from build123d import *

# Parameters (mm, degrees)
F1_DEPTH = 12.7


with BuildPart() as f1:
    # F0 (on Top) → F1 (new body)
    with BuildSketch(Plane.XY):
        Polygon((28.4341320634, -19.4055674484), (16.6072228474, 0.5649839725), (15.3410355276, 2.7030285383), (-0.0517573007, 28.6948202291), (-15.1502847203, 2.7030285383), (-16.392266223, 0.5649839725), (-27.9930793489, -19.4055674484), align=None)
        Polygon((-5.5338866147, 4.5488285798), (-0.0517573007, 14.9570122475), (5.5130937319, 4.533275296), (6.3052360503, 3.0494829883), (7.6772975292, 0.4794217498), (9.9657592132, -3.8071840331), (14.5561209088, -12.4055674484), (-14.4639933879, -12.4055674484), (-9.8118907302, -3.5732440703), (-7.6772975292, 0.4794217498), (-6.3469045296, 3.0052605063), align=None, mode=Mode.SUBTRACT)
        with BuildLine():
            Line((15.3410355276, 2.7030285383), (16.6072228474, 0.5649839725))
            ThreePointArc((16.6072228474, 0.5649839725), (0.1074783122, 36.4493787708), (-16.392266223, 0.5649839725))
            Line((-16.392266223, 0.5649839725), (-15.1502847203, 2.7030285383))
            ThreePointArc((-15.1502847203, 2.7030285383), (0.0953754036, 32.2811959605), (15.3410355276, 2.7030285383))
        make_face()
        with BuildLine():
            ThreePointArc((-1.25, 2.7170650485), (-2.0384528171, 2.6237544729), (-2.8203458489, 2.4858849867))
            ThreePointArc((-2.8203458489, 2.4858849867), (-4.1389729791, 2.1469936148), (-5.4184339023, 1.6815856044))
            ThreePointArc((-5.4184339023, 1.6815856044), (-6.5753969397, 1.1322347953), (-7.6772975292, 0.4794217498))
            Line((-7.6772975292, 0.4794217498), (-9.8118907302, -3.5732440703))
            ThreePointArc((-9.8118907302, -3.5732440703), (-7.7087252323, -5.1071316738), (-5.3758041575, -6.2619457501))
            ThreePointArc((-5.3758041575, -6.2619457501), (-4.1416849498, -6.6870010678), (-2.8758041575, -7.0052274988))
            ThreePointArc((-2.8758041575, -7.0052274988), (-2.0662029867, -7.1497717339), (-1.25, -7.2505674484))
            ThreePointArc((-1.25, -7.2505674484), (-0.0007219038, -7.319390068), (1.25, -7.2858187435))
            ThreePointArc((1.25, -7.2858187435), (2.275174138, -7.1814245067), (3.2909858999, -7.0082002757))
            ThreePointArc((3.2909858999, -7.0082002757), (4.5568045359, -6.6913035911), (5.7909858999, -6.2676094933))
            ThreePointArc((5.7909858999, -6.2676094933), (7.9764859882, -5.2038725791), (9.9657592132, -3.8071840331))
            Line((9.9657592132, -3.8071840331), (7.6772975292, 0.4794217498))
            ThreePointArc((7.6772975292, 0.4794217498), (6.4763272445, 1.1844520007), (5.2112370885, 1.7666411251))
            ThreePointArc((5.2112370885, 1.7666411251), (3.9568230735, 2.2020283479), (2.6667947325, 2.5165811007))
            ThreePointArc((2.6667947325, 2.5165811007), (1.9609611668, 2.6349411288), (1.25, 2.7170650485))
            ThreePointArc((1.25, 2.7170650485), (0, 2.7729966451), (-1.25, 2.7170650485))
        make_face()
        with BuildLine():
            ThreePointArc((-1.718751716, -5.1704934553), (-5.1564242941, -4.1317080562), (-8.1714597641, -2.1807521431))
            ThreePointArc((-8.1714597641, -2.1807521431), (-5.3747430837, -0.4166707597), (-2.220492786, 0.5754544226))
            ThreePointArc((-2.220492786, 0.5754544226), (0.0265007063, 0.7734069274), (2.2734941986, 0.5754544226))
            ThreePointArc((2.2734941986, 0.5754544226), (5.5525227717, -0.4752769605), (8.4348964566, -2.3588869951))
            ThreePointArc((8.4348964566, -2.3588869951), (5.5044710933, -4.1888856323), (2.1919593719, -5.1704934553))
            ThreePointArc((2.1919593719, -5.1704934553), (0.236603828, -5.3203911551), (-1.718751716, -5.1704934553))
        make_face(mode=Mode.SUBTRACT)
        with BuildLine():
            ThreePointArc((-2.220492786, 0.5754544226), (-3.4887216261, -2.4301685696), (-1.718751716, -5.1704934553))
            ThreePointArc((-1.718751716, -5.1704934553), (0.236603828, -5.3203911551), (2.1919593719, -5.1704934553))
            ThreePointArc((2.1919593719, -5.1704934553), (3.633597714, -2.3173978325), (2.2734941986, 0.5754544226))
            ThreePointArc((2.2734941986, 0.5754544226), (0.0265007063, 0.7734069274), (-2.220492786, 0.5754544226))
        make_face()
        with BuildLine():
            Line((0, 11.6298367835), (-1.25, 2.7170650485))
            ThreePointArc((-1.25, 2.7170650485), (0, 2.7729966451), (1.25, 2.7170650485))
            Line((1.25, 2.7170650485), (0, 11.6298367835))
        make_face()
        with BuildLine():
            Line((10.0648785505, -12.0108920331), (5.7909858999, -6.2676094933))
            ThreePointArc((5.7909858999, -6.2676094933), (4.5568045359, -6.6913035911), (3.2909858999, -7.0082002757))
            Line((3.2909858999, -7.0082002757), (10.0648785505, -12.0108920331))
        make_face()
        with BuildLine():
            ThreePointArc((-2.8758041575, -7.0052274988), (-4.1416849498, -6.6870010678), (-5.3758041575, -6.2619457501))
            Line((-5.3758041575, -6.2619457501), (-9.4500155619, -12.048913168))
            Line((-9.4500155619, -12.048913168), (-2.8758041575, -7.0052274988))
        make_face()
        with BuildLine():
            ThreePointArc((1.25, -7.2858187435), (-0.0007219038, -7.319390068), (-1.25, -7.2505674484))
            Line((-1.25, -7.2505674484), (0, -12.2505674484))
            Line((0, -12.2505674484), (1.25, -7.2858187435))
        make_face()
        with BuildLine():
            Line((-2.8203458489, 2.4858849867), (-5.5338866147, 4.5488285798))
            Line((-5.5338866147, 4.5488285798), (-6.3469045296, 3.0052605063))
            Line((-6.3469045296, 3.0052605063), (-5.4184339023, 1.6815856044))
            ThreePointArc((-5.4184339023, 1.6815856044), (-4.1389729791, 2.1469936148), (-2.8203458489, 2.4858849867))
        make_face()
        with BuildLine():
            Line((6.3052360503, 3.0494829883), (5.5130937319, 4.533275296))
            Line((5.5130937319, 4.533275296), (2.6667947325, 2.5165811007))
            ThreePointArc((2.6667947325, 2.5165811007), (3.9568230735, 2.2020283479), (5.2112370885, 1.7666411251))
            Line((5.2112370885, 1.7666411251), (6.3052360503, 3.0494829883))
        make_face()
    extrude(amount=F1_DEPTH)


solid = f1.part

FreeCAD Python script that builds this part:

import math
import FreeCAD as App
import Part
import Sketcher

doc = App.newDocument("Part")
params = doc.addObject("Spreadsheet::Sheet", "Params")
for row, (alias, value) in enumerate([
    ("sketch1_length", "9 mm"),
    ("pad1_length", "12.7 mm"),
], start=1):
    params.set(f"A{row}", alias)
    params.set(f"B{row}", "=" + value)
    params.setAlias(f"B{row}", alias)

body = doc.addObject("PartDesign::Body", "Body")

# Sketch on XY plane
sketch1 = body.newObject("Sketcher::SketchObject", "Sketch")
sketch1.AttachmentSupport = (doc.getObject("XY_Plane"), [""])
sketch1.MapMode = "FlatFace"
sketch1.addGeometry(Part.LineSegment(App.Vector(28.4, -19.4, 0), App.Vector(16.6, 0.6, 0)), False)
sketch1.addGeometry(Part.ArcOfCircle(Part.Circle(App.Vector(0.1, 14.7, 0), App.Vector(0, 0, 1), 21.7), math.radians(-41), math.radians(221)), False)
sketch1.addGeometry(Part.LineSegment(App.Vector(-16.4, 0.6, 0), App.Vector(-28, -19.4, 0)), False)
sketch1.addGeometry(Part.LineSegment(App.Vector(-28, -19.4, 0), App.Vector(28.4, -19.4, 0)), False)
sketch1.addGeometry(Part.LineSegment(App.Vector(10, -3.8, 0), App.Vector(14.6, -12.4, 0)), False)
sketch1.addGeometry(Part.LineSegment(App.Vector(14.6, -12.4, 0), App.Vector(-14.5, -12.4, 0)), False)
sketch1.addGeometry(Part.LineSegment(App.Vector(-14.5, -12.4, 0), App.Vector(-9.8, -3.6, 0)), False)
sketch1.addGeometry(Part.ArcOfCircle(Part.Circle(App.Vector(0.2, 8, 0), App.Vector(0, 0, 1), 15.3), math.radians(-130.99), math.radians(-111.45)), False)
sketch1.addGeometry(Part.LineSegment(App.Vector(-5.4, -6.3, 0), App.Vector(-9.5, -12, 0)), False)
sketch1.addGeometry(Part.LineSegment(App.Vector(-9.5, -12, 0), App.Vector(-2.9, -7, 0)), False)
sketch1.addGeometry(Part.ArcOfCircle(Part.Circle(App.Vector(0.2, 8, 0), App.Vector(0, 0, 1), 15.3), math.radians(-101.66), math.radians(-95.5)), False)
sketch1.addGeometry(Part.LineSegment(App.Vector(-1.2, -7.3, 0), App.Vector(0, -12.3, 0)), False)
sketch1.addGeometry(Part.LineSegment(App.Vector(0, -12.3, 0), App.Vector(1.2, -7.3, 0)), False)
sketch1.addGeometry(Part.ArcOfCircle(Part.Circle(App.Vector(0.2, 8, 0), App.Vector(0, 0, 1), 15.3), math.radians(-86.12), math.radians(-78.39)), False)
sketch1.addGeometry(Part.LineSegment(App.Vector(3.3, -7, 0), App.Vector(10.1, -12, 0)), False)
sketch1.addGeometry(Part.LineSegment(App.Vector(10.1, -12, 0), App.Vector(5.8, -6.3, 0)), False)
sketch1.addGeometry(Part.ArcOfCircle(Part.Circle(App.Vector(0.2, 8, 0), App.Vector(0, 0, 1), 15.3), math.radians(-68.61), math.radians(-50.37)), False)
sketch1.addGeometry(Part.LineSegment(App.Vector(-5.5, 4.5, 0), App.Vector(-0.1, 15, 0)), False)
sketch1.addGeometry(Part.LineSegment(App.Vector(-0.1, 15, 0), App.Vector(5.5, 4.5, 0)), False)
sketch1.addGeometry(Part.LineSegment(App.Vector(5.5, 4.5, 0), App.Vector(2.7, 2.5, 0)), False)
sketch1.addGeometry(Part.ArcOfCircle(Part.Circle(App.Vector(0, -11.2, 0), App.Vector(0, 0, 1), 14), math.radians(79.02), math.radians(84.88)), False)
sketch1.addGeometry(Part.LineSegment(App.Vector(1.2, 2.7, 0), App.Vector(0, 11.6, 0)), False)
sketch1.addGeometry(Part.LineSegment(App.Vector(0, 11.6, 0), App.Vector(-1.2, 2.7, 0)), False)
sketch1.addGeometry(Part.ArcOfCircle(Part.Circle(App.Vector(0, -11.2, 0), App.Vector(0, 0, 1), 14), math.radians(95.12), math.radians(101.63)), False)
sketch1.addGeometry(Part.LineSegment(App.Vector(-2.8, 2.5, 0), App.Vector(-5.5, 4.5, 0)), False)
sketch1.addGeometry(Part.LineSegment(App.Vector(6.3, 3, 0), App.Vector(7.7, 0.5, 0)), False)
sketch1.addGeometry(Part.ArcOfCircle(Part.Circle(App.Vector(0, -11.2, 0), App.Vector(0, 0, 1), 14), math.radians(56.73), math.radians(68.14)), False)
sketch1.addGeometry(Part.LineSegment(App.Vector(5.2, 1.8, 0), App.Vector(6.3, 3, 0)), False)
sketch1.addGeometry(Part.ArcOfCircle(Part.Circle(App.Vector(0, -11.2, 0), App.Vector(0, 0, 1), 14), math.radians(112.78), math.radians(123.27)), False)
sketch1.addGeometry(Part.LineSegment(App.Vector(-7.7, 0.5, 0), App.Vector(-6.3, 3, 0)), False)
sketch1.addGeometry(Part.LineSegment(App.Vector(-6.3, 3, 0), App.Vector(-5.4, 1.7, 0)), False)
sketch1.addGeometry(Part.ArcOfCircle(Part.Circle(App.Vector(0.2, 7.5, 0), App.Vector(0, 0, 1), 12.8), math.radians(-81), math.radians(-50)), False)
sketch1.addGeometry(Part.ArcOfCircle(Part.Circle(App.Vector(0, -2.3, 0), App.Vector(0, 0, 1), 3.6), math.radians(-53), math.radians(51)), False)
sketch1.addGeometry(Part.ArcOfCircle(Part.Circle(App.Vector(0, -12.1, 0), App.Vector(0, 0, 1), 12.9), math.radians(49), math.radians(80)), False)
sketch1.addGeometry(Part.ArcOfCircle(Part.Circle(App.Vector(0, -12.1, 0), App.Vector(0, 0, 1), 12.9), math.radians(100), math.radians(130)), False)
sketch1.addGeometry(Part.ArcOfCircle(Part.Circle(App.Vector(0, -2.1, 0), App.Vector(0, 0, 1), 3.5), math.radians(129), math.radians(241)), False)
sketch1.addGeometry(Part.ArcOfCircle(Part.Circle(App.Vector(0.2, 7.5, 0), App.Vector(0, 0, 1), 12.8), math.radians(-131), math.radians(-99)), False)
sketch1.addGeometry(Part.LineSegment(App.Vector(15.3, 2.7, 0), App.Vector(-0.1, 28.7, 0)), False)
sketch1.addGeometry(Part.LineSegment(App.Vector(-0.1, 28.7, 0), App.Vector(-15.2, 2.7, 0)), False)
sketch1.addGeometry(Part.ArcOfCircle(Part.Circle(App.Vector(0.1, 13.6, 0), App.Vector(0, 0, 1), 18.7), math.radians(-35), math.radians(215)), False)
sketch1.addConstraint(Sketcher.Constraint("Coincident", 0, 2, 1, 1))
sketch1.addConstraint(Sketcher.Constraint("Coincident", 1, 2, 2, 1))
sketch1.addConstraint(Sketcher.Constraint("Coincident", 2, 2, 3, 1))
sketch1.addConstraint(Sketcher.Constraint("Coincident", 3, 2, 0, 1))
sketch1.addConstraint(Sketcher.Constraint("Coincident", 4, 2, 5, 1))
sketch1.addConstraint(Sketcher.Constraint("Coincident", 5, 2, 6, 1))
sketch1.addConstraint(Sketcher.Constraint("Coincident", 6, 2, 7, 1))
sketch1.addConstraint(Sketcher.Constraint("Coincident", 7, 2, 8, 1))
sketch1.addConstraint(Sketcher.Constraint("Coincident", 8, 2, 9, 1))
sketch1.addConstraint(Sketcher.Constraint("Coincident", 9, 2, 10, 1))
sketch1.addConstraint(Sketcher.Constraint("Coincident", 10, 2, 11, 1))
sketch1.addConstraint(Sketcher.Constraint("Coincident", 11, 2, 12, 1))
sketch1.addConstraint(Sketcher.Constraint("Coincident", 12, 2, 13, 1))
sketch1.addConstraint(Sketcher.Constraint("Coincident", 13, 2, 14, 1))
sketch1.addConstraint(Sketcher.Constraint("Coincident", 14, 2, 15, 1))
sketch1.addConstraint(Sketcher.Constraint("Coincident", 15, 2, 16, 1))
sketch1.addConstraint(Sketcher.Constraint("Coincident", 16, 2, 4, 1))
sketch1.addConstraint(Sketcher.Constraint("Coincident", 17, 2, 18, 1))
sketch1.addConstraint(Sketcher.Constraint("Coincident", 18, 2, 19, 1))
sketch1.addConstraint(Sketcher.Constraint("Coincident", 19, 2, 20, 1))
sketch1.addConstraint(Sketcher.Constraint("Coincident", 20, 2, 21, 1))
sketch1.addConstraint(Sketcher.Constraint("Coincident", 21, 2, 22, 1))
sketch1.addConstraint(Sketcher.Constraint("Coincident", 22, 2, 23, 1))
sketch1.addConstraint(Sketcher.Constraint("Coincident", 23, 2, 24, 1))
sketch1.addConstraint(Sketcher.Constraint("Coincident", 24, 2, 17, 1))
sketch1.addConstraint(Sketcher.Constraint("Coincident", 25, 2, 26, 1))
sketch1.addConstraint(Sketcher.Constraint("Coincident", 26, 2, 27, 1))
sketch1.addConstraint(Sketcher.Constraint("Coincident", 27, 2, 25, 1))
sketch1.addConstraint(Sketcher.Constraint("Coincident", 28, 2, 29, 1))
sketch1.addConstraint(Sketcher.Constraint("Coincident", 29, 2, 30, 1))
sketch1.addConstraint(Sketcher.Constraint("Coincident", 30, 2, 28, 1))
sketch1.addConstraint(Sketcher.Constraint("Coincident", 31, 1, 32, 1))
sketch1.addConstraint(Sketcher.Constraint("Coincident", 32, 2, 33, 2))
sketch1.addConstraint(Sketcher.Constraint("Coincident", 33, 1, 31, 2))
sketch1.addConstraint(Sketcher.Constraint("Coincident", 34, 1, 35, 1))
sketch1.addConstraint(Sketcher.Constraint("Coincident", 35, 2, 36, 2))
sketch1.addConstraint(Sketcher.Constraint("Coincident", 36, 1, 34, 2))
sketch1.addConstraint(Sketcher.Constraint("Coincident", 37, 2, 38, 1))
sketch1.addConstraint(Sketcher.Constraint("Coincident", 38, 2, 39, 2))
sketch1.addConstraint(Sketcher.Constraint("Coincident", 39, 1, 37, 1))
sketch1.addConstraint(Sketcher.Constraint("Horizontal", 3))
sketch1.addConstraint(Sketcher.Constraint("Horizontal", 5))
sketch1.addConstraint(Sketcher.Constraint("Coincident", 10, 3, 7, 3))
sketch1.addConstraint(Sketcher.Constraint("Coincident", 13, 3, 7, 3))
sketch1.addConstraint(Sketcher.Constraint("Coincident", 16, 3, 7, 3))
sketch1.addConstraint(Sketcher.Constraint("Coincident", 23, 3, 20, 3))
sketch1.addConstraint(Sketcher.Constraint("Coincident", 26, 3, 20, 3))
sketch1.addConstraint(Sketcher.Constraint("Coincident", 28, 3, 20, 3))
sketch1.addConstraint(Sketcher.Constraint("Coincident", 34, 3, 33, 3))
sketch1.addConstraint(Sketcher.Constraint("Coincident", 36, 3, 31, 3))
sketch1.addConstraint(Sketcher.Constraint("Equal", 7, 10))
sketch1.addConstraint(Sketcher.Constraint("Equal", 10, 13))
sketch1.addConstraint(Sketcher.Constraint("Equal", 13, 16))
sketch1.addConstraint(Sketcher.Constraint("Equal", 20, 23))
sketch1.addConstraint(Sketcher.Constraint("Equal", 23, 26))
sketch1.addConstraint(Sketcher.Constraint("Equal", 26, 28))
sketch1.addConstraint(Sketcher.Constraint("Equal", 33, 34))
sketch1.addConstraint(Sketcher.Constraint("Equal", 31, 36))
sketch1.addConstraint(Sketcher.Constraint("Symmetric", 20, 2, 22, 2, -2))
sketch1.addConstraint(Sketcher.Constraint("PointOnObject", 11, 2, -2))
sketch1.addConstraint(Sketcher.Constraint("PointOnObject", 21, 2, -2))
sketch1.addConstraint(Sketcher.Constraint("Parallel", 6, 17))
sketch1.addConstraint(Sketcher.Constraint("Parallel", 4, 18))
sketch1.addConstraint(Sketcher.Constraint("Parallel", 18, 25))
sketch1.addConstraint(Sketcher.Constraint("Parallel", 17, 29))
sketch1.addConstraint(Sketcher.Constraint("Parallel", 0, 37))
sketch1.addConstraint(Sketcher.Constraint("Parallel", 2, 38))
sketch1.addConstraint(Sketcher.Constraint("Horizontal", 0, 2, 1, 2))
sketch1.addConstraint(Sketcher.Constraint("Horizontal", 25, 2, 28, 2))
sketch1.addConstraint(Sketcher.Constraint("Horizontal", 32, 2, 34, 1))
sketch1.addConstraint(Sketcher.Constraint("Horizontal", 31, 1, 35, 2))
sketch1.addConstraint(Sketcher.Constraint("Horizontal", 38, 2, 39, 1))
sketch1.addConstraint(Sketcher.Constraint("Vertical", 12, 2, 20, 2))
sketch1.addConstraint(Sketcher.Constraint("Vertical", 10, 2, 22, 2))
sketch1.addConstraint(Sketcher.Constraint("Vertical", 17, 2, 37, 2))
sketch1.addConstraint(Sketcher.Constraint("Distance", 21, 9.0))
sketch1.addConstraint(Sketcher.Constraint("DistanceX", 7, 2, 9, 2, 2.5))
sketch1.addConstraint(Sketcher.Constraint("DistanceX", 10, 2, 12, 2, 2.5))
sketch1.addConstraint(Sketcher.Constraint("DistanceX", 13, 2, 15, 2, 2.5))
sketch1.addConstraint(Sketcher.Constraint("Radius", 1, 21.735512))
sketch1.addConstraint(Sketcher.Constraint("Radius", 7, 15.286809))
sketch1.addConstraint(Sketcher.Constraint("Radius", 20, 13.99592))
sketch1.addConstraint(Sketcher.Constraint("Radius", 32, 3.64682))
sketch1.addConstraint(Sketcher.Constraint("Radius", 31, 12.828364))
sketch1.addConstraint(Sketcher.Constraint("Radius", 33, 12.851984))
sketch1.addConstraint(Sketcher.Constraint("Radius", 35, 3.489512))
sketch1.addConstraint(Sketcher.Constraint("Radius", 39, 18.718167))
sketch1.addConstraint(Sketcher.Constraint("DistanceX", 26, 2, 27, 2, 1.093999))
sketch1.addConstraint(Sketcher.Constraint("Distance", 8, 7.077301))
sketch1.addConstraint(Sketcher.Constraint("DistanceX", 3, 1, 3, 2, 56.427211))
sketch1.addConstraint(Sketcher.Constraint("DistanceY", -1, 1, 7, 3, 7.9659))
sketch1.addConstraint(Sketcher.Constraint("DistanceX", -1, 1, 33, 3, 0.026501))
sketch1.addConstraint(Sketcher.Constraint("DistanceY", 13, 2, -1, 1, 7.0082))
sketch1.addConstraint(Sketcher.Constraint("DistanceY", 35, 3, 0, 2, 2.6916))
sketch1.addConstraint(Sketcher.Constraint("DistanceX", 4, 2, 0, 2, 2.051102))
sketch1.addConstraint(Sketcher.Constraint("DistanceY", 7, 2, 6, 2, 2.688702))
sketch1.addConstraint(Sketcher.Constraint("DistanceX", 19, 2, 18, 2, 2.846299))
sketch1.addConstraint(Sketcher.Constraint("DistanceY", 35, 3, 23, 2, 4.612501))
sketch1.addConstraint(Sketcher.Constraint("DistanceY", 19, 2, 27, 2, 0.532902))
sketch1.addConstraint(Sketcher.Constraint("DistanceY", 30, 2, 23, 2, 0.804299))
sketch1.addConstraint(Sketcher.Constraint("DistanceX", 32, 2, 19, 2, 0.393301))
sketch1.addConstraint(Sketcher.Constraint("DistanceX", 25, 2, 33, 1, 0.757599))
sketch1.addConstraint(Sketcher.Constraint("DistanceX", 27, 2, 39, 1, 9.035799))
sketch1.addConstraint(Sketcher.Constraint("Distance", 4, 9.74698))
sketch1.addConstraint(Sketcher.Constraint("Distance", 12, 5.11969))
sketch1.addConstraint(Sketcher.Constraint("Distance", 14, 8.420959))
sketch1.addConstraint(Sketcher.Constraint("Distance", 15, 7.159012))
sketch1.addConstraint(Sketcher.Constraint("Distance", 18, 11.816169))
sketch1.addConstraint(Sketcher.Constraint("Distance", 24, 3.408671))
sketch1.addConstraint(Sketcher.Constraint("Distance", 30, 1.61684))
sketch1.addConstraint(Sketcher.Constraint("Distance", 38, 30.058922))
sketch1.addConstraint(Sketcher.Constraint("DistanceX", 5, 2, 5, 1, 29.020114))
sketch1.addConstraint(Sketcher.Constraint("DistanceX", -1, 1, 1, 3, 0.107478))
sketch1.addConstraint(Sketcher.Constraint("DistanceX", -1, 1, 7, 3, 0.214809))
sketch1.addConstraint(Sketcher.Constraint("DistanceY", -1, 1, 39, 3, 13.563029))
sketch1.addConstraint(Sketcher.Constraint("DistanceX", 2, 2, -1, 1, 27.993079))
sketch1.addConstraint(Sketcher.Constraint("DistanceX", -1, 1, 4, 2, 14.556121))
sketch1.addConstraint(Sketcher.Constraint("DistanceX", 6, 2, -1, 1, 9.811891))
sketch1.addConstraint(Sketcher.Constraint("DistanceX", -1, 1, 16, 2, 9.965759))
sketch1.addConstraint(Sketcher.Constraint("DistanceY", -1, 1, 19, 2, 2.516581))
sketch1.addConstraint(Sketcher.Constraint("DistanceY", -1, 1, 24, 2, 4.548829))
sketch1.addConstraint(Sketcher.Constraint("DistanceY", -1, 1, 25, 2, 0.479422))
sketch1.addConstraint(Sketcher.Constraint("DistanceY", -1, 1, 26, 2, 1.766641))
sketch1.addConstraint(Sketcher.Constraint("DistanceY", -1, 1, 29, 2, 3.005261))
sketch1.addConstraint(Sketcher.Constraint("DistanceX", -1, 1, 31, 1, 2.191959))
sketch1.addConstraint(Sketcher.Constraint("DistanceX", 35, 2, -1, 1, 1.718752))
sketch1.addConstraint(Sketcher.Constraint("DistanceX", 8, 2, 7, 2, 4.074211))
sketch1.setExpression("Constraints[75]", "Params.sketch1_length")
pad1 = body.newObject("PartDesign::Pad", "Pad")
pad1.Profile = sketch1
pad1.setExpression("Length", "Params.pad1_length")

doc.recompute()
